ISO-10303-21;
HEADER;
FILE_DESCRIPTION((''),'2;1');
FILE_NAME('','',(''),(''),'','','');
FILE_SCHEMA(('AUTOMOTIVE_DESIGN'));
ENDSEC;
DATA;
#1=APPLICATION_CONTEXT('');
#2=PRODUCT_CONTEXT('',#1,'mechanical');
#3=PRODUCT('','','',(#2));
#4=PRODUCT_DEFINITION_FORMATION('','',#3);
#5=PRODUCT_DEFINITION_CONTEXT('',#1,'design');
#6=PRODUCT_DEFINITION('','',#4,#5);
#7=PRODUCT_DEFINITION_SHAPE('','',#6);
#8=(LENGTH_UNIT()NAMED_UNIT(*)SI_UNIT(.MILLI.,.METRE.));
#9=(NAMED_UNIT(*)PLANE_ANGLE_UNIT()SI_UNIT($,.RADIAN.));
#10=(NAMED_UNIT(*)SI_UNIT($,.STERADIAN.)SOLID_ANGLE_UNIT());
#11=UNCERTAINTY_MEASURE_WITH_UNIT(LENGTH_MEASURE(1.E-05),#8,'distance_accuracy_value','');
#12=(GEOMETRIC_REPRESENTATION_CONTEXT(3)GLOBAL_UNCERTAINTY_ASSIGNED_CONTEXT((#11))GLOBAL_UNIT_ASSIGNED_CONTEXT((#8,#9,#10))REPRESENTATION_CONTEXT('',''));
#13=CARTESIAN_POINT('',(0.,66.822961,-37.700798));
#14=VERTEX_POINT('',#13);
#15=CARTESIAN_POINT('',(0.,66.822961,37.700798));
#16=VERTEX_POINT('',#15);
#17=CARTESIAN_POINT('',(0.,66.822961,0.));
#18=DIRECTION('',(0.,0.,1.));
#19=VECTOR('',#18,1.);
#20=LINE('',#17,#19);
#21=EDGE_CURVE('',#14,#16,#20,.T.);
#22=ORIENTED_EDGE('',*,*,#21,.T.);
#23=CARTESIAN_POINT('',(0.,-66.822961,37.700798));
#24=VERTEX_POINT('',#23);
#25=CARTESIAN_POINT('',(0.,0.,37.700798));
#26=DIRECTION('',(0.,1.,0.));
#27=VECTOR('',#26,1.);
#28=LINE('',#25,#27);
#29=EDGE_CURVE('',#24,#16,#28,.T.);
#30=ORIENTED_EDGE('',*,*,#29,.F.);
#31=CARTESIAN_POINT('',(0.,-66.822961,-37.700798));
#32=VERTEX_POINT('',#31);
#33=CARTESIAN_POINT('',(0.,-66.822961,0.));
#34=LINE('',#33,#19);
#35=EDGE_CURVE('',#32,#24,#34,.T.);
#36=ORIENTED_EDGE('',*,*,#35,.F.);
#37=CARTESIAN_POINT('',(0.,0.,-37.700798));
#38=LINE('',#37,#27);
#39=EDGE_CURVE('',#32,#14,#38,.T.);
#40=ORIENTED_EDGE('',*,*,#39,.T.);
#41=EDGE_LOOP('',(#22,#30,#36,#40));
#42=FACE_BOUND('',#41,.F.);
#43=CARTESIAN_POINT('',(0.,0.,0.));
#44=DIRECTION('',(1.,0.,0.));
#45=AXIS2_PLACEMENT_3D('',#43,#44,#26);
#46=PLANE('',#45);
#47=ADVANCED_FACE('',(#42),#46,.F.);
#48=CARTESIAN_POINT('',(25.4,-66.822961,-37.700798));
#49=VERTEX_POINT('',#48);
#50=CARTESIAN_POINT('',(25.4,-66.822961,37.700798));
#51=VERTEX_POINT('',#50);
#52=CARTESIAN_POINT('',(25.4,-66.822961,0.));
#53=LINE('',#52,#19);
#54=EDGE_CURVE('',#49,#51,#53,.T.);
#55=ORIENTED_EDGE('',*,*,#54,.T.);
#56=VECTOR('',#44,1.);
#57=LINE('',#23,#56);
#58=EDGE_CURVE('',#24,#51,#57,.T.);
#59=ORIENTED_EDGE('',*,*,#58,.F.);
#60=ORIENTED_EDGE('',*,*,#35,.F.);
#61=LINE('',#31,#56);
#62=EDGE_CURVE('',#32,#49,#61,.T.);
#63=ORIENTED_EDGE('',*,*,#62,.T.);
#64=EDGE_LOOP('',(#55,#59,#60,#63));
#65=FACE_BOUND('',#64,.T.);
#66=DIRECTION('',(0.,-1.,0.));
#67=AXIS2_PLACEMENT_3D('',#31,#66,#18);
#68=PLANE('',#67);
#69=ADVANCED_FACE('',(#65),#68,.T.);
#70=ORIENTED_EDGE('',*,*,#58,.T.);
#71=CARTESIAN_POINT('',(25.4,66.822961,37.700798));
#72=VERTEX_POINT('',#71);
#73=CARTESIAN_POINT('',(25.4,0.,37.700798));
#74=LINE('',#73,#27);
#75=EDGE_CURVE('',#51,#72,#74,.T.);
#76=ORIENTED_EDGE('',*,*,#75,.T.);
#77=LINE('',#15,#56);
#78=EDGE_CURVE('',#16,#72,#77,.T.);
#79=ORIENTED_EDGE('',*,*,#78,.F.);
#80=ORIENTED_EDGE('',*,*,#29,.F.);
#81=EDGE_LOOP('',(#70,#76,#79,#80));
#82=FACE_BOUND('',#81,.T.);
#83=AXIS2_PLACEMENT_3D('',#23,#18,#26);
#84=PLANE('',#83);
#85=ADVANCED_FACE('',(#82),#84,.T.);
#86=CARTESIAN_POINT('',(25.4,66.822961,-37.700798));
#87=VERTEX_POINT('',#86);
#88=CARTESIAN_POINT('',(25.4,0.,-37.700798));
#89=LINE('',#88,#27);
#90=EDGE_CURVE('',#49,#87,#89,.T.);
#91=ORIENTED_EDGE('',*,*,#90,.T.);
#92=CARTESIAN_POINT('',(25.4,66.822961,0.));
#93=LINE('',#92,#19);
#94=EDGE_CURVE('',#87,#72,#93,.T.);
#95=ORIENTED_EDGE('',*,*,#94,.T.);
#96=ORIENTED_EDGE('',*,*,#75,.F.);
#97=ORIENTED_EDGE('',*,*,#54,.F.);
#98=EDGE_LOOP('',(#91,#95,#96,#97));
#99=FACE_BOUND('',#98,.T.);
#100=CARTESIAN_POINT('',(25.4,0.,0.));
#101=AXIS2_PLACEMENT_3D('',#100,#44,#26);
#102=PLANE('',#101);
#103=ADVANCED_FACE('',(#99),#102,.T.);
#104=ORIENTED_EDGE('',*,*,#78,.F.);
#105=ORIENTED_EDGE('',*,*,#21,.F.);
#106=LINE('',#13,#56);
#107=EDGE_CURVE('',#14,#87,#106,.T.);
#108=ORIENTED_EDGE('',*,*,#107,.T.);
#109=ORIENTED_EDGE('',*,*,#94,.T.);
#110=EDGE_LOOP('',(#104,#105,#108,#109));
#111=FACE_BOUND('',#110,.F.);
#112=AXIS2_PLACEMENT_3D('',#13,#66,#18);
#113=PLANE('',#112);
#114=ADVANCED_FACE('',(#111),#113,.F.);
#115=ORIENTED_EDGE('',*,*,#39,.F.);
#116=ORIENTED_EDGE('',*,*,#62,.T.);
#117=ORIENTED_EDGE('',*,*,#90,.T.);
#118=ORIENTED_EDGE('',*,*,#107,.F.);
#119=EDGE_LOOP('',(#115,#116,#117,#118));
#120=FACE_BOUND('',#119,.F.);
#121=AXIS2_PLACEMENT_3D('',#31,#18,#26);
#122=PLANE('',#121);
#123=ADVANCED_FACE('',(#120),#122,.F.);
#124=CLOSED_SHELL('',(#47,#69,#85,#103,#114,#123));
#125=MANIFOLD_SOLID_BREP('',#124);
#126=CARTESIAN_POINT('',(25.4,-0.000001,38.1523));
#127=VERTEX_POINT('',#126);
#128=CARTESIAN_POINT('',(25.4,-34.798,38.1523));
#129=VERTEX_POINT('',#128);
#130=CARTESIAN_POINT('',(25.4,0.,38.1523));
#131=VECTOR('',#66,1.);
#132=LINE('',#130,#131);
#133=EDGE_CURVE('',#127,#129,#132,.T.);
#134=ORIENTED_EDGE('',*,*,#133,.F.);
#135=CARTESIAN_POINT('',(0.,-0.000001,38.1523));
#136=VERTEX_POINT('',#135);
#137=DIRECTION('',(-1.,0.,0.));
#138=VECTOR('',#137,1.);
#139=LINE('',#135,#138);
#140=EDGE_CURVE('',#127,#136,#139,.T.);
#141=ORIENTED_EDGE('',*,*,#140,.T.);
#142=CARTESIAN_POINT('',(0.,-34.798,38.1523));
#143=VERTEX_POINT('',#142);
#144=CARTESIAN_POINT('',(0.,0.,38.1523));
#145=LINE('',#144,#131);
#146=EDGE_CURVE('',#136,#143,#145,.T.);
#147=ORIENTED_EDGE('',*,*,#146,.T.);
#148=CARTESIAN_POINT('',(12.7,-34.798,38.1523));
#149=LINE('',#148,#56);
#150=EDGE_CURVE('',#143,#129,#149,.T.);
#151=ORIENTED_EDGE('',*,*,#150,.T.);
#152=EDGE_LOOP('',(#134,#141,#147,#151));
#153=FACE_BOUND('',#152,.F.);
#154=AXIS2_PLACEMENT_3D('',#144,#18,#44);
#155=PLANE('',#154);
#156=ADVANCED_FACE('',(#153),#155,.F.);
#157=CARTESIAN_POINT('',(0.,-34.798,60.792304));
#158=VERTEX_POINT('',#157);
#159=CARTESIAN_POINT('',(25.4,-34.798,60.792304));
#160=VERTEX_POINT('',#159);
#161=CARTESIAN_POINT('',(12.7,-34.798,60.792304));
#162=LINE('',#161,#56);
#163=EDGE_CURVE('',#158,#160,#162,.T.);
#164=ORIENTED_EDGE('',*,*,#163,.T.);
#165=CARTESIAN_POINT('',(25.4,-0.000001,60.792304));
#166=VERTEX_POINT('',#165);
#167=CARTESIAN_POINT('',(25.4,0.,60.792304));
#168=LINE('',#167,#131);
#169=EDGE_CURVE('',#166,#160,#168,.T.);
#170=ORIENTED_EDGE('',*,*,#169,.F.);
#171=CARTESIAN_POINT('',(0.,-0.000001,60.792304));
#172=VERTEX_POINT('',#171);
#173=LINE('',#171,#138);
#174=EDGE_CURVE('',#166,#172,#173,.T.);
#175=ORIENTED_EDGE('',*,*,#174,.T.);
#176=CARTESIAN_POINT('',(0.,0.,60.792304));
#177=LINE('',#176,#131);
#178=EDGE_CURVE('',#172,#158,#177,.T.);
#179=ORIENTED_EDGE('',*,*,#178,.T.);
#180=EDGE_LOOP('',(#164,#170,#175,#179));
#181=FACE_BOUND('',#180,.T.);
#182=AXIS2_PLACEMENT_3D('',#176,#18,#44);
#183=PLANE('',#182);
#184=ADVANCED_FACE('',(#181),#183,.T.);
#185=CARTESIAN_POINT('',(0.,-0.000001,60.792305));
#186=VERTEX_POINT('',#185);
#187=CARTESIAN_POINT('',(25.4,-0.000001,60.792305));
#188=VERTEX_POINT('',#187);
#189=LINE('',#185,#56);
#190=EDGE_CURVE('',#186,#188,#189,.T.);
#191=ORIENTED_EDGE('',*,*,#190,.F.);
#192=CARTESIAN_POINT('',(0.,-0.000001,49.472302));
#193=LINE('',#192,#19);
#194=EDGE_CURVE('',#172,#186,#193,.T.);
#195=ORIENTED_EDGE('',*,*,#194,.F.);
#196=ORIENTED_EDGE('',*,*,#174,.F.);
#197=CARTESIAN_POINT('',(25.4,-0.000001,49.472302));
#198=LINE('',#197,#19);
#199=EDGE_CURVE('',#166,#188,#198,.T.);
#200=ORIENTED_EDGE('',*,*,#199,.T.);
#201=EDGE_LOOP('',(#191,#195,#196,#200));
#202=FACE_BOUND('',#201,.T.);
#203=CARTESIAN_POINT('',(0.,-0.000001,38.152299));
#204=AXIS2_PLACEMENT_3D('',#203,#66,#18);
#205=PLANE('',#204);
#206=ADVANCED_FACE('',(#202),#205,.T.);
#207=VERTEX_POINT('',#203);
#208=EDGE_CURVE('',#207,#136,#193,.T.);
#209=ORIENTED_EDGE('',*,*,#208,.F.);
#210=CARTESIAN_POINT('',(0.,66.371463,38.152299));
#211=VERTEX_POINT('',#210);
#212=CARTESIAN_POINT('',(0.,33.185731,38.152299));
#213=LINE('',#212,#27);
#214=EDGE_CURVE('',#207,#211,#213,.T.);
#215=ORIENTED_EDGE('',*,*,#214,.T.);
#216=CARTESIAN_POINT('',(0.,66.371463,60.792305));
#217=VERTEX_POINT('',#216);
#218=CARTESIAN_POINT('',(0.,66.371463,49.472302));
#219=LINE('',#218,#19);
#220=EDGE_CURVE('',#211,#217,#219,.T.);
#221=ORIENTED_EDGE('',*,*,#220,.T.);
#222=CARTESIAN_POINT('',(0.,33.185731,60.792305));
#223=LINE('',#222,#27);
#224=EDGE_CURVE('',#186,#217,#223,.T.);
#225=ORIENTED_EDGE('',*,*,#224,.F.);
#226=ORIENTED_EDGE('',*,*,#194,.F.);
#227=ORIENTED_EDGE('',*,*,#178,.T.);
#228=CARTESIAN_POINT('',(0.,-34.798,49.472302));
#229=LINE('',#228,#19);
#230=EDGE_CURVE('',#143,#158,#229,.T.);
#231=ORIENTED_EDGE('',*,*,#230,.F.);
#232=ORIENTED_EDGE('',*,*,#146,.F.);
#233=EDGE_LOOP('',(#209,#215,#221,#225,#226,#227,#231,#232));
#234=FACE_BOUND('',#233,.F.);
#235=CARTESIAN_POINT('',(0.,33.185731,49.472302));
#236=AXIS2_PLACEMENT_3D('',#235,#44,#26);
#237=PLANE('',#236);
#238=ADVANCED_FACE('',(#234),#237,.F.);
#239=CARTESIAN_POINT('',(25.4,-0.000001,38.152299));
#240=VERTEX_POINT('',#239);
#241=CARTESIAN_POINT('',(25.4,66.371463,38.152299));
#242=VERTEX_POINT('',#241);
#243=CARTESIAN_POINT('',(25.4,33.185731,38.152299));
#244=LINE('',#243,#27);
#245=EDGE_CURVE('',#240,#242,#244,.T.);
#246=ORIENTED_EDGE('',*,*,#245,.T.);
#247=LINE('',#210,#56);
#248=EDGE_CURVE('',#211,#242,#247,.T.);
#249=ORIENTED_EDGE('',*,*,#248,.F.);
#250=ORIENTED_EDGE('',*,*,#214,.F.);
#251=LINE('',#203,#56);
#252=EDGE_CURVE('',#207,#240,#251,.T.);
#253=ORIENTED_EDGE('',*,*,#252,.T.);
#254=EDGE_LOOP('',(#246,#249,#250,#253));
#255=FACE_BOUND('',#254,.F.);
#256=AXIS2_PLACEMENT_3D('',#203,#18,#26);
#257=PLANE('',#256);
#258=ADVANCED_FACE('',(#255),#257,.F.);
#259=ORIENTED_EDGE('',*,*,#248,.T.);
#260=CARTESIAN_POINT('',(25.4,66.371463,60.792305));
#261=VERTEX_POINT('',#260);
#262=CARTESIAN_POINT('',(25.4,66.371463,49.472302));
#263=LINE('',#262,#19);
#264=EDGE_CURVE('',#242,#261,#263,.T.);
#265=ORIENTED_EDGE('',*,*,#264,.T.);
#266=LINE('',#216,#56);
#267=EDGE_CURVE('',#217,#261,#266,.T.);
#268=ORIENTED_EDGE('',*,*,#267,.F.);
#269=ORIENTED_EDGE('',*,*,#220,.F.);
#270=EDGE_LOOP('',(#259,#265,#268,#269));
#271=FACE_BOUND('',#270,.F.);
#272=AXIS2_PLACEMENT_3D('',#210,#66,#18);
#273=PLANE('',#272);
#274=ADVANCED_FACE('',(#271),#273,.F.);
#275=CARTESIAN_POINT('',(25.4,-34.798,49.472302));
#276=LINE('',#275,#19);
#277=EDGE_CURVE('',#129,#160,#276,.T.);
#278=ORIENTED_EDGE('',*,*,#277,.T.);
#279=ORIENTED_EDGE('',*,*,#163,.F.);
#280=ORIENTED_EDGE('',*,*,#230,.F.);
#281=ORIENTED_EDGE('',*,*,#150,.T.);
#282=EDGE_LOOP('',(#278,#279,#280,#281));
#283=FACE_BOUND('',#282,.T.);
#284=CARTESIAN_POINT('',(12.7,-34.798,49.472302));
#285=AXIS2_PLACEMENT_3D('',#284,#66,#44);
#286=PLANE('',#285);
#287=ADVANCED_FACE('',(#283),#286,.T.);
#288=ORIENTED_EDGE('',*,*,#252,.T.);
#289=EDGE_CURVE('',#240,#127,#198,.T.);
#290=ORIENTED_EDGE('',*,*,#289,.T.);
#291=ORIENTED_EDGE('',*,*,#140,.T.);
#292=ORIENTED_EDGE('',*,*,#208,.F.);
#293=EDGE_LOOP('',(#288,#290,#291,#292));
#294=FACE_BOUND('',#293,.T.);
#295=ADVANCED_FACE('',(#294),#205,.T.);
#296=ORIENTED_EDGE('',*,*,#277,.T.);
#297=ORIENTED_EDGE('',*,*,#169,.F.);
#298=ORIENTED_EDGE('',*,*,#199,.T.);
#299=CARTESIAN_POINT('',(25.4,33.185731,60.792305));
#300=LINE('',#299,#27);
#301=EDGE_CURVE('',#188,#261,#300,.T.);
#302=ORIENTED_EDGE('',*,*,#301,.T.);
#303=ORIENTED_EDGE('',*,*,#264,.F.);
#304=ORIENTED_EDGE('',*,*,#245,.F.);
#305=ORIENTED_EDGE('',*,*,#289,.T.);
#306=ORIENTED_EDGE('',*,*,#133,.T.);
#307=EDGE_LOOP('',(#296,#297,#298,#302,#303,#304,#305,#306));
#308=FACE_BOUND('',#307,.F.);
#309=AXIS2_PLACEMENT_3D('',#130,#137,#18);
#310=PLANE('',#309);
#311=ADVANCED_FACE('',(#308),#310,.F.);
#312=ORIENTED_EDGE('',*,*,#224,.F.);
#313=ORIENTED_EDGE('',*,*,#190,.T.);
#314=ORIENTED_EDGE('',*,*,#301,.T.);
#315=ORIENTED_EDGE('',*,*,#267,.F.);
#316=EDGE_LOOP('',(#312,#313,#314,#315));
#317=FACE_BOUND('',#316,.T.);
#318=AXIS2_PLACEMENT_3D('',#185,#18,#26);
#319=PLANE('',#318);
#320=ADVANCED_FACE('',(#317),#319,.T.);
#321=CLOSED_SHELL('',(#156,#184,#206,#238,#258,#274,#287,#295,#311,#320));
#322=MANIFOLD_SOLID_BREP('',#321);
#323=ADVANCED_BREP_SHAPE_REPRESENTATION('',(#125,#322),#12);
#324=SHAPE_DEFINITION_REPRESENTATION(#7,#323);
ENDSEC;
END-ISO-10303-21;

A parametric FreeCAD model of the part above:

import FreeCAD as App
import Part
import Sketcher

V = App.Vector
Q = App.Units.Quantity


def add_polygon(sketch, points):
    """Adds a closed chain of lines whose ends are joined by coincident constraints."""
    first, n = sketch.GeometryCount, len(points)
    for a, b in zip(points, points[1:] + points[:1]):
        sketch.addGeometry(Part.LineSegment(App.Vector(*a, 0), App.Vector(*b, 0)), False)
    for i in range(n):
        sketch.addConstraint(Sketcher.Constraint("Coincident", first + i, 2, first + (i + 1) % n, 1))

doc = App.newDocument("Part")
body = doc.addObject("PartDesign::Body", "Body")

sketch1 = body.newObject("Sketcher::SketchObject", "Sketch")
sketch1.AttachmentSupport = (doc.getObject("YZ_Plane"), [""])
sketch1.MapMode = "FlatFace"
add_polygon(sketch1, [(-66.822961, 37.700798), (-66.822961, -37.700798), (66.822961, -37.700798), (66.822961, 37.700798)])
sketch1.addConstraint([
    Sketcher.Constraint("Vertical", 0),
    Sketcher.Constraint("Horizontal", 1),
    Sketcher.Constraint("Vertical", 2),
    Sketcher.Constraint("Horizontal", 3),
    Sketcher.Constraint("Symmetric", 0, 2, 2, 2, -1, 1),
    Sketcher.Constraint("DistanceX", 1, 1, 1, 2, 133.645922),
    Sketcher.Constraint("DistanceY", 0, 2, 0, 1, 75.401596),
])
pad1 = body.newObject("PartDesign::Pad", "Pad")
pad1.Profile = sketch1
pad1.Length = Q("1 in")
body2 = doc.addObject("PartDesign::Body", "Body001")

sketch2 = body2.newObject("Sketcher::SketchObject", "Sketch001")
sketch2.AttachmentSupport = (doc.getObject("YZ_Plane001"), [""])
sketch2.MapMode = "FlatFace"
add_polygon(sketch2, [(0, 60.792305), (0, 38.152299), (66.371463, 38.152299), (66.371463, 60.792305)])
sketch2.addConstraint([
    Sketcher.Constraint("Vertical", 0),
    Sketcher.Constraint("Horizontal", 1),
    Sketcher.Constraint("Vertical", 2),
    Sketcher.Constraint("Horizontal", 3),
    Sketcher.Constraint("PointOnObject", 0, 2, -2),
    Sketcher.Constraint("DistanceY", -1, 1, 0, 2, 38.152299),
    Sketcher.Constraint("DistanceX", 1, 1, 1, 2, 66.371463),
    Sketcher.Constraint("DistanceY", 0, 2, 0, 1, 22.640005),
])
pad2 = body2.newObject("PartDesign::Pad", "Pad001")
pad2.Profile = sketch2
pad2.Length = Q("1 in")

sketch3 = body2.newObject("Sketcher::SketchObject", "Sketch002")
sketch3.AttachmentSupport = (doc.getObject("XZ_Plane001"), [""])
sketch3.MapMode = "FlatFace"
add_polygon(sketch3, [(0, 60.792304), (0, 38.1523), (25.4, 38.1523), (25.4, 60.792304)])
sketch3.addConstraint([
    Sketcher.Constraint("Vertical", 0),
    Sketcher.Constraint("Horizontal", 1),
    Sketcher.Constraint("Vertical", 2),
    Sketcher.Constraint("Horizontal", 3),
    Sketcher.Constraint("PointOnObject", 0, 2, -2),
    Sketcher.Constraint("DistanceX", 1, 1, 1, 2, Q("1 in")),
    Sketcher.Constraint("DistanceY", -1, 1, 0, 2, 38.1523),
    Sketcher.Constraint("DistanceY", 0, 2, 0, 1, 22.640004),
])
pad3 = body2.newObject("PartDesign::Pad", "Pad002")
pad3.Profile = sketch3
pad3.Length = Q("1.37 in")

doc.recompute()
